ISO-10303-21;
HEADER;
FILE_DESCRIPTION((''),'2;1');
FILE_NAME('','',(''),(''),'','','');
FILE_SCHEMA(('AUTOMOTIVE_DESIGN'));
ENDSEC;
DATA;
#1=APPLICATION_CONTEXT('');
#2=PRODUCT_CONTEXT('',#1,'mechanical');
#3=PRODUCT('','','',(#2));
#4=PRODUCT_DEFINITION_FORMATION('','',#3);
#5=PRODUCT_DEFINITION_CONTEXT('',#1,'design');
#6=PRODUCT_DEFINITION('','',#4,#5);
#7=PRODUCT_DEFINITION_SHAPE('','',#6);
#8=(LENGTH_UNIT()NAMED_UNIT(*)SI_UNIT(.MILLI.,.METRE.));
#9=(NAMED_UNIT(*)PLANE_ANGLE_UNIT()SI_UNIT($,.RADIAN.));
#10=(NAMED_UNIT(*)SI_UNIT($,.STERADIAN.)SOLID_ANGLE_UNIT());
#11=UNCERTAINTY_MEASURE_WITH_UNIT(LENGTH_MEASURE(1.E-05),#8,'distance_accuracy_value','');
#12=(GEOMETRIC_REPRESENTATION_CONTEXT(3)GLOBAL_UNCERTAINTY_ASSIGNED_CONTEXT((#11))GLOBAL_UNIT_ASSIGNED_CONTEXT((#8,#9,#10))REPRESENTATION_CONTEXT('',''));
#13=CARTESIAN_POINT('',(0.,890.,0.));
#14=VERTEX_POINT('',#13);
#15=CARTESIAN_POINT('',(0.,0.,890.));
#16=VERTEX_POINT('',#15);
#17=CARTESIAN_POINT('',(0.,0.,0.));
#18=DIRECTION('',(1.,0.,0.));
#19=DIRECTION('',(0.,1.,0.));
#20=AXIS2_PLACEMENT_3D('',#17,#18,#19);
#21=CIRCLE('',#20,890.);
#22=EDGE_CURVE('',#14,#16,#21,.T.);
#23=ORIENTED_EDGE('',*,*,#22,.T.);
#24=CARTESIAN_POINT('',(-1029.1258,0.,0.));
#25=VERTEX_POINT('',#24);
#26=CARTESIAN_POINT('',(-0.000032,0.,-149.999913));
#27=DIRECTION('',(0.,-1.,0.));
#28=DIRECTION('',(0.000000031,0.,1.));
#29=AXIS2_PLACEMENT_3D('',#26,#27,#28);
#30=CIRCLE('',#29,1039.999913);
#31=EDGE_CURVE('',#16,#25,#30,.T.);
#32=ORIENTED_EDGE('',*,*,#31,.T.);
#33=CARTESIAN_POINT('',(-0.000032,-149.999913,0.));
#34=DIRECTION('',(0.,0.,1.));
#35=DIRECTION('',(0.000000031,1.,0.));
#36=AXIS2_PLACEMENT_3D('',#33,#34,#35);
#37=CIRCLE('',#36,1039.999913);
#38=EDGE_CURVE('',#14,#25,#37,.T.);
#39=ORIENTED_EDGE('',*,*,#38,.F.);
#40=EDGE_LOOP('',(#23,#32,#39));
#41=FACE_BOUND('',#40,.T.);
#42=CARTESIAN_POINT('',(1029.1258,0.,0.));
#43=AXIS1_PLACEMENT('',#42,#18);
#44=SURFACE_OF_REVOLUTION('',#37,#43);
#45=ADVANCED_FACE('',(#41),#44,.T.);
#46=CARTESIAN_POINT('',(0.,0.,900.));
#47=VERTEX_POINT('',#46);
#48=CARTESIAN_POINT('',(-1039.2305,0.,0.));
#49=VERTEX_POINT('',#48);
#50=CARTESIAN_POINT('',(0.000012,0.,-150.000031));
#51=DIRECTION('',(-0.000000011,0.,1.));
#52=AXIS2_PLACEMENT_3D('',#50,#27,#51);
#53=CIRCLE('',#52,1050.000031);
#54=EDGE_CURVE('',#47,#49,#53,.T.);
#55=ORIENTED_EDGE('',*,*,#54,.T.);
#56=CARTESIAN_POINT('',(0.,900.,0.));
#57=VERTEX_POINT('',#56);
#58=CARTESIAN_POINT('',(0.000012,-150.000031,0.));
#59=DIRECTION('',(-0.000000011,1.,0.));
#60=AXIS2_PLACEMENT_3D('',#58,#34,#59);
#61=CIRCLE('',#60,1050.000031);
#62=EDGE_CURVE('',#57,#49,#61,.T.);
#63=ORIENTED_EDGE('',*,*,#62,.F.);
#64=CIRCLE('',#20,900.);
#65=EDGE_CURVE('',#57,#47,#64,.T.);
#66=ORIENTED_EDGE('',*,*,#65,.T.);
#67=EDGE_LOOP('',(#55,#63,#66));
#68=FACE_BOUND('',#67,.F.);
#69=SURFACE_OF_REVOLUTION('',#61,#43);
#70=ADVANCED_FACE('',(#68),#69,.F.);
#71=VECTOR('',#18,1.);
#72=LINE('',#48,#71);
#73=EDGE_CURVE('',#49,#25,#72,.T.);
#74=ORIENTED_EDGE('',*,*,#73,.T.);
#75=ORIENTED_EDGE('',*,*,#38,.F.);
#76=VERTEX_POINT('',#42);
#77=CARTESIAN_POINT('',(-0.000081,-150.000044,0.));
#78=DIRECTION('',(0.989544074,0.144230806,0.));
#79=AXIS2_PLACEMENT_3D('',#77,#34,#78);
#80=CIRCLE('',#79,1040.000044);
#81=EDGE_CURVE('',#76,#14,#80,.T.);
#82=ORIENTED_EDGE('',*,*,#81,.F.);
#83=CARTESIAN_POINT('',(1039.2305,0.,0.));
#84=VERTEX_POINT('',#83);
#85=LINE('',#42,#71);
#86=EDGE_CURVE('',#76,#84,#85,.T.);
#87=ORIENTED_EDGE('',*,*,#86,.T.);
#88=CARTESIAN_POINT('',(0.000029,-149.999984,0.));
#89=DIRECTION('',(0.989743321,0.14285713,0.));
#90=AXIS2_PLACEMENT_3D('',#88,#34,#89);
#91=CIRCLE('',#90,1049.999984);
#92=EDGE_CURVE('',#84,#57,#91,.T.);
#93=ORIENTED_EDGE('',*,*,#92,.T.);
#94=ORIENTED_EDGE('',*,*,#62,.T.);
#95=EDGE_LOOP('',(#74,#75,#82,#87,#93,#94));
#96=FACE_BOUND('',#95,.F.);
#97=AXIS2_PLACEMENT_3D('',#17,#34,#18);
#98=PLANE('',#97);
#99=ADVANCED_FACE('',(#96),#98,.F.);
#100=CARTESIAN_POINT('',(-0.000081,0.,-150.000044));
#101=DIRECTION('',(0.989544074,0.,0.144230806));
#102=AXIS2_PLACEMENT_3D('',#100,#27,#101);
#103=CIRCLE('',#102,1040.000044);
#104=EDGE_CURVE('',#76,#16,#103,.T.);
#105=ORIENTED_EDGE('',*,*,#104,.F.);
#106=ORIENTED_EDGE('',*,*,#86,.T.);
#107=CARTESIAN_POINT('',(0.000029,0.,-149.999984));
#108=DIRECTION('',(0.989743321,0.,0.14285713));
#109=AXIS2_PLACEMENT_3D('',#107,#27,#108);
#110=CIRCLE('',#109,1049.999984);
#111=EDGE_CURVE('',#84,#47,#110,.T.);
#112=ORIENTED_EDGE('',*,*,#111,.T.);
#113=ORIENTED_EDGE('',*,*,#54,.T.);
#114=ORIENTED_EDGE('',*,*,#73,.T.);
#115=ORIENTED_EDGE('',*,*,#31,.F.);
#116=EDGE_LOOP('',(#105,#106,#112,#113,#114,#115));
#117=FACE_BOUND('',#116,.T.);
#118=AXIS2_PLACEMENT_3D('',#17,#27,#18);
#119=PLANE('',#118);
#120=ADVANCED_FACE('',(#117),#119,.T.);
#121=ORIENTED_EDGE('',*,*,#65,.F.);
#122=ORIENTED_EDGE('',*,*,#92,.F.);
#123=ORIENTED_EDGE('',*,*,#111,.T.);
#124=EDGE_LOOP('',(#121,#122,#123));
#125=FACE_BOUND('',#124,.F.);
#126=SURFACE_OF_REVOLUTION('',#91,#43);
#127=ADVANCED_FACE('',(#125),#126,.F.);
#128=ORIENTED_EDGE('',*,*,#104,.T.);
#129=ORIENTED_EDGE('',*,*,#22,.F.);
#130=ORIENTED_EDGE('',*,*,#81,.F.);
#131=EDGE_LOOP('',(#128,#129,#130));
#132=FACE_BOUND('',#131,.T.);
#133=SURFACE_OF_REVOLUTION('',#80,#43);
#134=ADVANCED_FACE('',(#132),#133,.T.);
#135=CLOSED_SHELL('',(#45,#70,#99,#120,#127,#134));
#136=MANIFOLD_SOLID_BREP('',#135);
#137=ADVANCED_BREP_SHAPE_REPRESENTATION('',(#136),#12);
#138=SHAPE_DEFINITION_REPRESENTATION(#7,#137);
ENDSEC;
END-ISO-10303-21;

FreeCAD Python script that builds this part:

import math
import FreeCAD as App
import Part
import Sketcher
from FreeCAD import Vector
Q = App.Units.Quantity

doc = App.newDocument("Part")
params = doc.addObject("Spreadsheet::Sheet", "Params")
for row, (alias, value) in enumerate([
    ("sketch1_radius", "1040 mm"),
    ("revolution_angle", "90 deg"),
], start=1):
    params.set(f"A{row}", alias)
    params.set(f"B{row}", "=" + value)
    params.setAlias(f"B{row}", alias)

body = doc.addObject("PartDesign::Body", "Body")

sketch1 = body.newObject("Sketcher::SketchObject", "Sketch")
sketch1.AttachmentSupport = (doc.getObject("XY_Plane"), [""])
sketch1.MapMode = "FlatFace"
sketch1.addGeometry([
    Part.ArcOfCircle(Part.Circle(Vector(0, -150, 0), Vector(0, 0, 1), 1050), math.radians(8), math.radians(90)),
    Part.ArcOfCircle(Part.Circle(Vector(0, -150, 0), Vector(0, 0, 1), 1050), math.radians(90), math.radians(172)),
    Part.LineSegment(Vector(-1039, 0, 0), Vector(-1029, 0, 0)),
    Part.ArcOfCircle(Part.Circle(Vector(0, -150, 0), Vector(0, 0, 1), 1040), math.radians(90), math.radians(172)),
    Part.ArcOfCircle(Part.Circle(Vector(0, -150, 0), Vector(0, 0, 1), 1040), math.radians(8), math.radians(90)),
    Part.LineSegment(Vector(1029, 0, 0), Vector(1039, 0, 0)),
], False)
sketch1.addConstraint([
    Sketcher.Constraint("Coincident", 0, 2, 1, 1),
    Sketcher.Constraint("Coincident", 1, 2, 2, 1),
    Sketcher.Constraint("Coincident", 2, 2, 3, 2),
    Sketcher.Constraint("Coincident", 3, 1, 4, 2),
    Sketcher.Constraint("Coincident", 4, 1, 5, 1),
    Sketcher.Constraint("Coincident", 5, 2, 0, 1),
    Sketcher.Constraint("Horizontal", 2),
    Sketcher.Constraint("Horizontal", 5),
    Sketcher.Constraint("Coincident", 1, 3, 0, 3),
    Sketcher.Constraint("Coincident", 3, 3, 0, 3),
    Sketcher.Constraint("Coincident", 4, 3, 0, 3),
    Sketcher.Constraint("PointOnObject", 0, 3, -2),
    Sketcher.Constraint("PointOnObject", 0, 2, -2),
    Sketcher.Constraint("PointOnObject", 2, 2, -1),
    Sketcher.Constraint("PointOnObject", 3, 1, -2),
    Sketcher.Constraint("PointOnObject", 5, 2, -1),
    Sketcher.Constraint("DistanceY", 0, 3, -1, 1, Q("150 mm")),
    Sketcher.Constraint("DistanceY", -1, 1, 0, 2, Q("900 mm")),
    Sketcher.Constraint("Radius", 3, Q("1040 mm")),
])
sketch1.setExpression("Constraints[18]", "Params.sketch1_radius")
revolution = body.newObject("PartDesign::Revolution", "Revolution")
revolution.Profile = sketch1
revolution.ReferenceAxis = (sketch1, ["H_Axis"])
revolution.setExpression("Angle", "Params.revolution_angle")

doc.recompute()
